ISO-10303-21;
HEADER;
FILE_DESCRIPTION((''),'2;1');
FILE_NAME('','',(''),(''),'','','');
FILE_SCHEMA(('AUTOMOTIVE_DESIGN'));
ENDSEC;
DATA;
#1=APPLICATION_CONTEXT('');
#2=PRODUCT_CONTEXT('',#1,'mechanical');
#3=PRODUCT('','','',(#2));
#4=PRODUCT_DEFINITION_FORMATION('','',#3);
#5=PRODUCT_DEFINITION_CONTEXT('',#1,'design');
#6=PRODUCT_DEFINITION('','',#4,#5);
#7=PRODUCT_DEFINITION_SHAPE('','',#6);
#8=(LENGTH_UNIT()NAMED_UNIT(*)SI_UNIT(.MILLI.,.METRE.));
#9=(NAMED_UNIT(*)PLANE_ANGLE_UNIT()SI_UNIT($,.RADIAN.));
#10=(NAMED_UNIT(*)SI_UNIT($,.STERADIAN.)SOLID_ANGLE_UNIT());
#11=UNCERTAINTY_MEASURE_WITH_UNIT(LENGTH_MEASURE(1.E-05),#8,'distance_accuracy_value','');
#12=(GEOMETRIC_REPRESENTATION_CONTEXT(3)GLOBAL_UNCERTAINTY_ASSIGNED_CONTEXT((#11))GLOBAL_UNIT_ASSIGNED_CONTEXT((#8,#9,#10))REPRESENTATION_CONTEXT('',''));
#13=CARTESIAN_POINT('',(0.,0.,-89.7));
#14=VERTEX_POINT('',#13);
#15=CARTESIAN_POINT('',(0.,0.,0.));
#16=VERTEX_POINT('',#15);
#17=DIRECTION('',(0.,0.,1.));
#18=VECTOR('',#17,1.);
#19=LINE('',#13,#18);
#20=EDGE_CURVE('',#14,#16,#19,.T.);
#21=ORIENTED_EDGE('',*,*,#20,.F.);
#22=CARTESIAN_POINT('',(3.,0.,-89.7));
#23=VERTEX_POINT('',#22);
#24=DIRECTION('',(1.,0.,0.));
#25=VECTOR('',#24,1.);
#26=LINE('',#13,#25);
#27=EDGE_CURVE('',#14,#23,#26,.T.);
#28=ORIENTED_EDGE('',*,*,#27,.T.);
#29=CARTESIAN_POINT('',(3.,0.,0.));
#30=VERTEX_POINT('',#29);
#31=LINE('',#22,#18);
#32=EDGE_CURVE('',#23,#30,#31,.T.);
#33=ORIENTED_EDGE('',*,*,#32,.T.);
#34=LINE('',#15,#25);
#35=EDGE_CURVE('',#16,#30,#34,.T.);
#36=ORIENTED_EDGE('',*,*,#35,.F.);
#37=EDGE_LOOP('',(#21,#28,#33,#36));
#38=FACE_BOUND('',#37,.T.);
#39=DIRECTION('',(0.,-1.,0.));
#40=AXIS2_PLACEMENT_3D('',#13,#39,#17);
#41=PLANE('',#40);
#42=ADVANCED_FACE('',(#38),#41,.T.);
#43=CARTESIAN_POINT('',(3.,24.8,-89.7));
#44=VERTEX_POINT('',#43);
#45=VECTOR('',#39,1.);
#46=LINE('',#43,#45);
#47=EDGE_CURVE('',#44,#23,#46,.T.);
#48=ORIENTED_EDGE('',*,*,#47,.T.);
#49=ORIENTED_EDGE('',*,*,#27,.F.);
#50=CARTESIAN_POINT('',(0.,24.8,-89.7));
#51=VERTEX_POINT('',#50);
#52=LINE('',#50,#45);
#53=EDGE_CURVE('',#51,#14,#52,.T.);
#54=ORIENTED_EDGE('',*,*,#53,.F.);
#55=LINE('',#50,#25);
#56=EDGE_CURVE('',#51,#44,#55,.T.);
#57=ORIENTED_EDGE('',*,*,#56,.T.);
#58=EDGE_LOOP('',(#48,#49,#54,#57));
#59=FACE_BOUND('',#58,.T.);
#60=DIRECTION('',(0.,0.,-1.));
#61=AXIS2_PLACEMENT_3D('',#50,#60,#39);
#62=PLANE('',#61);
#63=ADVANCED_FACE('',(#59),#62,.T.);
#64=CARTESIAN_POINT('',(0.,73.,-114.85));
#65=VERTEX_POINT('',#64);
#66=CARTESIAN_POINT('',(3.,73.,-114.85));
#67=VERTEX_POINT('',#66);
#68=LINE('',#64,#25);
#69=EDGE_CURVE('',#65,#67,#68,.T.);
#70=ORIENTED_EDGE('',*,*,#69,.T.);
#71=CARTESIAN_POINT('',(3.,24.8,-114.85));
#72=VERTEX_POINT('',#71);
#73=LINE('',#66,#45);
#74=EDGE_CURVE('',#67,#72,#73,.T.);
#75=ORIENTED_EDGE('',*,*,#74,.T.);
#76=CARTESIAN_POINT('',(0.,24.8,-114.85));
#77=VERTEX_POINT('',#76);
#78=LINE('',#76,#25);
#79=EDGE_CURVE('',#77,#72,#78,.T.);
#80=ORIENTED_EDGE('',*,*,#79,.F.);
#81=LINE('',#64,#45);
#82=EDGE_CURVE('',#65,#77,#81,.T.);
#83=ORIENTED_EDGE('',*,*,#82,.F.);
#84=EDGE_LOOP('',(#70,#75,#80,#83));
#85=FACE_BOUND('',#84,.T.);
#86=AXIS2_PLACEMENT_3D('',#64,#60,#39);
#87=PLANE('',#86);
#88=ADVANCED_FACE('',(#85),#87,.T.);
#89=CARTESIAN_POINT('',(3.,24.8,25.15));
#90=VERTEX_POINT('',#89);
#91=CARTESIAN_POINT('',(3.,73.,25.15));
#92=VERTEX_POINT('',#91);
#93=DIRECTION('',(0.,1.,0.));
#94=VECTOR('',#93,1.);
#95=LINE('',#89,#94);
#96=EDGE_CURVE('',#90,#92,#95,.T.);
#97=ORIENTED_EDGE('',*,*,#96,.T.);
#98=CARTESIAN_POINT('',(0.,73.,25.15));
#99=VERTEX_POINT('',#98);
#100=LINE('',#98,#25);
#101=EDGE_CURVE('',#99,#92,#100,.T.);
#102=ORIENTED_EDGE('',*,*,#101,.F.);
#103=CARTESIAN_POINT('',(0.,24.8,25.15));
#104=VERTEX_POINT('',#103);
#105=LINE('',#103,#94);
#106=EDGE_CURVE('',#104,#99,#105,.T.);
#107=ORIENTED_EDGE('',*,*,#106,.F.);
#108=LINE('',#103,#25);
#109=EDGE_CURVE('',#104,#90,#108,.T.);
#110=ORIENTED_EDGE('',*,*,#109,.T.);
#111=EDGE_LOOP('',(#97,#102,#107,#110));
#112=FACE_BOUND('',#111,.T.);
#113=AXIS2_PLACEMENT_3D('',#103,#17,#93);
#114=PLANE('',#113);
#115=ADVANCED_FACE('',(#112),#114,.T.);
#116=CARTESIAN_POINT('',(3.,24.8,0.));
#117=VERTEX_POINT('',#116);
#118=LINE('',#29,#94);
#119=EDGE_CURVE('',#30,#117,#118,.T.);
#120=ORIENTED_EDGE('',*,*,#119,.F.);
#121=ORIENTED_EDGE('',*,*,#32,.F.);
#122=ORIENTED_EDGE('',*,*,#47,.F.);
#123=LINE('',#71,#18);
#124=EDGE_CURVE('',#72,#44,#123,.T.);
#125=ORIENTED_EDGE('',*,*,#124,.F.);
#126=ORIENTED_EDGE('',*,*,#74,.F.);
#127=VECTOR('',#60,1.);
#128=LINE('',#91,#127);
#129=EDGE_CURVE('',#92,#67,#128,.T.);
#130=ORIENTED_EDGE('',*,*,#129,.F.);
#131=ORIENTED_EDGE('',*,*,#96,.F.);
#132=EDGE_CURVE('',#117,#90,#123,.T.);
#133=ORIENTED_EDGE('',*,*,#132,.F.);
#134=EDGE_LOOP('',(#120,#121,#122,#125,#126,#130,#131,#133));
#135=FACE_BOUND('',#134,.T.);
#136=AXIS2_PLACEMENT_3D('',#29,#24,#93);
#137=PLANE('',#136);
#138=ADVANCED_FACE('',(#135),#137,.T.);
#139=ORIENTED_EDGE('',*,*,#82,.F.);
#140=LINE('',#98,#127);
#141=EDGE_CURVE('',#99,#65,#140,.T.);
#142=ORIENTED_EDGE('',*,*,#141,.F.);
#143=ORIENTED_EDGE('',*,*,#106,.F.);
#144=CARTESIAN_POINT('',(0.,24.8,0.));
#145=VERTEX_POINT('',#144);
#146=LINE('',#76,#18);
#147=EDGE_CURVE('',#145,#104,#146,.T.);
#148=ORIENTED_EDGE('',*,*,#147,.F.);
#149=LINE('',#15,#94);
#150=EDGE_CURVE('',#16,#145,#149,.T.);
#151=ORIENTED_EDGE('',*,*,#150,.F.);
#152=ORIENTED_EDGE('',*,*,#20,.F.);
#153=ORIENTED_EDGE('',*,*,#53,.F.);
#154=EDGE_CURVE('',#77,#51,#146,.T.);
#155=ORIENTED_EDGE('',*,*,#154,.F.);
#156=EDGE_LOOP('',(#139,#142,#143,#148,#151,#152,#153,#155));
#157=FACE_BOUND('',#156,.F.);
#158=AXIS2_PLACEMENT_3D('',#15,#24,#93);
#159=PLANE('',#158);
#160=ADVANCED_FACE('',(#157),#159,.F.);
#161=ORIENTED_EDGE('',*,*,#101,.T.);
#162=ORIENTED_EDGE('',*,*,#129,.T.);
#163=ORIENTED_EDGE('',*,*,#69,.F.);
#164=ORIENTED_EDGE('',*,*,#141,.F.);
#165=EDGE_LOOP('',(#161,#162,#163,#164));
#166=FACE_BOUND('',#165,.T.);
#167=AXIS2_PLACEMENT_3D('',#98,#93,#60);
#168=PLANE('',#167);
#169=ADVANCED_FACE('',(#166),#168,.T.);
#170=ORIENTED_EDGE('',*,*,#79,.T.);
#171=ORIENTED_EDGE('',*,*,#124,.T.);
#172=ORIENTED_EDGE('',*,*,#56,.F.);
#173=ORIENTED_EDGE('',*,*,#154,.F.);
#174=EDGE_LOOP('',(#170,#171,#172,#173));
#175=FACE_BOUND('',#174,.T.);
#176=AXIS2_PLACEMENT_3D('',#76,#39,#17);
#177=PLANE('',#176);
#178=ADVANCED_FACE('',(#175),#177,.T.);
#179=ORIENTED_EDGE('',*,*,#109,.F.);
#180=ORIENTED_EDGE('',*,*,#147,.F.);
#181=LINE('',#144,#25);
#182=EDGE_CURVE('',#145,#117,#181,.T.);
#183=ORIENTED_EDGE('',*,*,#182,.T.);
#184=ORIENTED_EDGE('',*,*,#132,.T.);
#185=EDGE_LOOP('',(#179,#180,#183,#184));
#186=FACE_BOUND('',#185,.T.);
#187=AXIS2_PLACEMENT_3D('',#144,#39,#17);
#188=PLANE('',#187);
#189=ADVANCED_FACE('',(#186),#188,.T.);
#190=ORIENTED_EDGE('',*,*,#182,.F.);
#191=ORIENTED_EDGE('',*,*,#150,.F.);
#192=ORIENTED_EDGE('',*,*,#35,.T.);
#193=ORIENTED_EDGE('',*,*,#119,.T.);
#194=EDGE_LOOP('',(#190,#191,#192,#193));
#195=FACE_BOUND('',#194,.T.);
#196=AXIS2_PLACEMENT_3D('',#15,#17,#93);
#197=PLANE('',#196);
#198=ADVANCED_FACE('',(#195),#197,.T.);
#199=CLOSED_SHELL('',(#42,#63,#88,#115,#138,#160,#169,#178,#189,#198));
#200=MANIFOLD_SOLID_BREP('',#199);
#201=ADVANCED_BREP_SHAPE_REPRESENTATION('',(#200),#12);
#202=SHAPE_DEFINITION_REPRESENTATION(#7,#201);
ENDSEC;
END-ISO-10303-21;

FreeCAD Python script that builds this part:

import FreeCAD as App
import Part
import Sketcher


def add_polygon(sketch, points):
    """Adds a closed chain of lines whose ends are joined by coincident constraints."""
    first, n = sketch.GeometryCount, len(points)
    for a, b in zip(points, points[1:] + points[:1]):
        sketch.addGeometry(Part.LineSegment(App.Vector(*a, 0), App.Vector(*b, 0)), False)
    for i in range(n):
        sketch.addConstraint(Sketcher.Constraint("Coincident", first + i, 2, first + (i + 1) % n, 1))

doc = App.newDocument("Part")
body = doc.addObject("PartDesign::Body", "Body")

# Sketch on YZ plane
sketch1 = body.newObject("Sketcher::SketchObject", "Sketch")
sketch1.AttachmentSupport = (doc.getObject("YZ_Plane"), [""])
sketch1.MapMode = "FlatFace"
add_polygon(sketch1, [(25, 0), (0, 0), (0, -90), (25, -90), (25, -115), (73, -115), (73, 25), (25, 25)])  # lines 0-7
sketch1.addConstraint(Sketcher.Constraint("Horizontal", 0))
sketch1.addConstraint(Sketcher.Constraint("Vertical", 1))
sketch1.addConstraint(Sketcher.Constraint("Horizontal", 2))
sketch1.addConstraint(Sketcher.Constraint("Vertical", 3))
sketch1.addConstraint(Sketcher.Constraint("Horizontal", 4))
sketch1.addConstraint(Sketcher.Constraint("Vertical", 5))
sketch1.addConstraint(Sketcher.Constraint("Horizontal", 6))
sketch1.addConstraint(Sketcher.Constraint("Vertical", 7))
sketch1.addConstraint(Sketcher.Constraint("Coincident", 0, 2, -1, 1))
sketch1.addConstraint(Sketcher.Constraint("Vertical", 3, 2, 6, 2))
sketch1.addConstraint(Sketcher.Constraint("Equal", 3, 7))
sketch1.addConstraint(Sketcher.Constraint("DistanceY", 5, 1, 5, 2, 140.0))
sketch1.addConstraint(Sketcher.Constraint("DistanceX", 0, 2, 0, 1, 24.8))
sketch1.addConstraint(Sketcher.Constraint("DistanceY", 1, 2, 1, 1, 89.7))
sketch1.addConstraint(Sketcher.Constraint("DistanceX", -1, 1, 4, 2, 73.0))
pad1 = body.newObject("PartDesign::Pad", "Pad")
pad1.Profile = sketch1
pad1.Length = 3

doc.recompute()
